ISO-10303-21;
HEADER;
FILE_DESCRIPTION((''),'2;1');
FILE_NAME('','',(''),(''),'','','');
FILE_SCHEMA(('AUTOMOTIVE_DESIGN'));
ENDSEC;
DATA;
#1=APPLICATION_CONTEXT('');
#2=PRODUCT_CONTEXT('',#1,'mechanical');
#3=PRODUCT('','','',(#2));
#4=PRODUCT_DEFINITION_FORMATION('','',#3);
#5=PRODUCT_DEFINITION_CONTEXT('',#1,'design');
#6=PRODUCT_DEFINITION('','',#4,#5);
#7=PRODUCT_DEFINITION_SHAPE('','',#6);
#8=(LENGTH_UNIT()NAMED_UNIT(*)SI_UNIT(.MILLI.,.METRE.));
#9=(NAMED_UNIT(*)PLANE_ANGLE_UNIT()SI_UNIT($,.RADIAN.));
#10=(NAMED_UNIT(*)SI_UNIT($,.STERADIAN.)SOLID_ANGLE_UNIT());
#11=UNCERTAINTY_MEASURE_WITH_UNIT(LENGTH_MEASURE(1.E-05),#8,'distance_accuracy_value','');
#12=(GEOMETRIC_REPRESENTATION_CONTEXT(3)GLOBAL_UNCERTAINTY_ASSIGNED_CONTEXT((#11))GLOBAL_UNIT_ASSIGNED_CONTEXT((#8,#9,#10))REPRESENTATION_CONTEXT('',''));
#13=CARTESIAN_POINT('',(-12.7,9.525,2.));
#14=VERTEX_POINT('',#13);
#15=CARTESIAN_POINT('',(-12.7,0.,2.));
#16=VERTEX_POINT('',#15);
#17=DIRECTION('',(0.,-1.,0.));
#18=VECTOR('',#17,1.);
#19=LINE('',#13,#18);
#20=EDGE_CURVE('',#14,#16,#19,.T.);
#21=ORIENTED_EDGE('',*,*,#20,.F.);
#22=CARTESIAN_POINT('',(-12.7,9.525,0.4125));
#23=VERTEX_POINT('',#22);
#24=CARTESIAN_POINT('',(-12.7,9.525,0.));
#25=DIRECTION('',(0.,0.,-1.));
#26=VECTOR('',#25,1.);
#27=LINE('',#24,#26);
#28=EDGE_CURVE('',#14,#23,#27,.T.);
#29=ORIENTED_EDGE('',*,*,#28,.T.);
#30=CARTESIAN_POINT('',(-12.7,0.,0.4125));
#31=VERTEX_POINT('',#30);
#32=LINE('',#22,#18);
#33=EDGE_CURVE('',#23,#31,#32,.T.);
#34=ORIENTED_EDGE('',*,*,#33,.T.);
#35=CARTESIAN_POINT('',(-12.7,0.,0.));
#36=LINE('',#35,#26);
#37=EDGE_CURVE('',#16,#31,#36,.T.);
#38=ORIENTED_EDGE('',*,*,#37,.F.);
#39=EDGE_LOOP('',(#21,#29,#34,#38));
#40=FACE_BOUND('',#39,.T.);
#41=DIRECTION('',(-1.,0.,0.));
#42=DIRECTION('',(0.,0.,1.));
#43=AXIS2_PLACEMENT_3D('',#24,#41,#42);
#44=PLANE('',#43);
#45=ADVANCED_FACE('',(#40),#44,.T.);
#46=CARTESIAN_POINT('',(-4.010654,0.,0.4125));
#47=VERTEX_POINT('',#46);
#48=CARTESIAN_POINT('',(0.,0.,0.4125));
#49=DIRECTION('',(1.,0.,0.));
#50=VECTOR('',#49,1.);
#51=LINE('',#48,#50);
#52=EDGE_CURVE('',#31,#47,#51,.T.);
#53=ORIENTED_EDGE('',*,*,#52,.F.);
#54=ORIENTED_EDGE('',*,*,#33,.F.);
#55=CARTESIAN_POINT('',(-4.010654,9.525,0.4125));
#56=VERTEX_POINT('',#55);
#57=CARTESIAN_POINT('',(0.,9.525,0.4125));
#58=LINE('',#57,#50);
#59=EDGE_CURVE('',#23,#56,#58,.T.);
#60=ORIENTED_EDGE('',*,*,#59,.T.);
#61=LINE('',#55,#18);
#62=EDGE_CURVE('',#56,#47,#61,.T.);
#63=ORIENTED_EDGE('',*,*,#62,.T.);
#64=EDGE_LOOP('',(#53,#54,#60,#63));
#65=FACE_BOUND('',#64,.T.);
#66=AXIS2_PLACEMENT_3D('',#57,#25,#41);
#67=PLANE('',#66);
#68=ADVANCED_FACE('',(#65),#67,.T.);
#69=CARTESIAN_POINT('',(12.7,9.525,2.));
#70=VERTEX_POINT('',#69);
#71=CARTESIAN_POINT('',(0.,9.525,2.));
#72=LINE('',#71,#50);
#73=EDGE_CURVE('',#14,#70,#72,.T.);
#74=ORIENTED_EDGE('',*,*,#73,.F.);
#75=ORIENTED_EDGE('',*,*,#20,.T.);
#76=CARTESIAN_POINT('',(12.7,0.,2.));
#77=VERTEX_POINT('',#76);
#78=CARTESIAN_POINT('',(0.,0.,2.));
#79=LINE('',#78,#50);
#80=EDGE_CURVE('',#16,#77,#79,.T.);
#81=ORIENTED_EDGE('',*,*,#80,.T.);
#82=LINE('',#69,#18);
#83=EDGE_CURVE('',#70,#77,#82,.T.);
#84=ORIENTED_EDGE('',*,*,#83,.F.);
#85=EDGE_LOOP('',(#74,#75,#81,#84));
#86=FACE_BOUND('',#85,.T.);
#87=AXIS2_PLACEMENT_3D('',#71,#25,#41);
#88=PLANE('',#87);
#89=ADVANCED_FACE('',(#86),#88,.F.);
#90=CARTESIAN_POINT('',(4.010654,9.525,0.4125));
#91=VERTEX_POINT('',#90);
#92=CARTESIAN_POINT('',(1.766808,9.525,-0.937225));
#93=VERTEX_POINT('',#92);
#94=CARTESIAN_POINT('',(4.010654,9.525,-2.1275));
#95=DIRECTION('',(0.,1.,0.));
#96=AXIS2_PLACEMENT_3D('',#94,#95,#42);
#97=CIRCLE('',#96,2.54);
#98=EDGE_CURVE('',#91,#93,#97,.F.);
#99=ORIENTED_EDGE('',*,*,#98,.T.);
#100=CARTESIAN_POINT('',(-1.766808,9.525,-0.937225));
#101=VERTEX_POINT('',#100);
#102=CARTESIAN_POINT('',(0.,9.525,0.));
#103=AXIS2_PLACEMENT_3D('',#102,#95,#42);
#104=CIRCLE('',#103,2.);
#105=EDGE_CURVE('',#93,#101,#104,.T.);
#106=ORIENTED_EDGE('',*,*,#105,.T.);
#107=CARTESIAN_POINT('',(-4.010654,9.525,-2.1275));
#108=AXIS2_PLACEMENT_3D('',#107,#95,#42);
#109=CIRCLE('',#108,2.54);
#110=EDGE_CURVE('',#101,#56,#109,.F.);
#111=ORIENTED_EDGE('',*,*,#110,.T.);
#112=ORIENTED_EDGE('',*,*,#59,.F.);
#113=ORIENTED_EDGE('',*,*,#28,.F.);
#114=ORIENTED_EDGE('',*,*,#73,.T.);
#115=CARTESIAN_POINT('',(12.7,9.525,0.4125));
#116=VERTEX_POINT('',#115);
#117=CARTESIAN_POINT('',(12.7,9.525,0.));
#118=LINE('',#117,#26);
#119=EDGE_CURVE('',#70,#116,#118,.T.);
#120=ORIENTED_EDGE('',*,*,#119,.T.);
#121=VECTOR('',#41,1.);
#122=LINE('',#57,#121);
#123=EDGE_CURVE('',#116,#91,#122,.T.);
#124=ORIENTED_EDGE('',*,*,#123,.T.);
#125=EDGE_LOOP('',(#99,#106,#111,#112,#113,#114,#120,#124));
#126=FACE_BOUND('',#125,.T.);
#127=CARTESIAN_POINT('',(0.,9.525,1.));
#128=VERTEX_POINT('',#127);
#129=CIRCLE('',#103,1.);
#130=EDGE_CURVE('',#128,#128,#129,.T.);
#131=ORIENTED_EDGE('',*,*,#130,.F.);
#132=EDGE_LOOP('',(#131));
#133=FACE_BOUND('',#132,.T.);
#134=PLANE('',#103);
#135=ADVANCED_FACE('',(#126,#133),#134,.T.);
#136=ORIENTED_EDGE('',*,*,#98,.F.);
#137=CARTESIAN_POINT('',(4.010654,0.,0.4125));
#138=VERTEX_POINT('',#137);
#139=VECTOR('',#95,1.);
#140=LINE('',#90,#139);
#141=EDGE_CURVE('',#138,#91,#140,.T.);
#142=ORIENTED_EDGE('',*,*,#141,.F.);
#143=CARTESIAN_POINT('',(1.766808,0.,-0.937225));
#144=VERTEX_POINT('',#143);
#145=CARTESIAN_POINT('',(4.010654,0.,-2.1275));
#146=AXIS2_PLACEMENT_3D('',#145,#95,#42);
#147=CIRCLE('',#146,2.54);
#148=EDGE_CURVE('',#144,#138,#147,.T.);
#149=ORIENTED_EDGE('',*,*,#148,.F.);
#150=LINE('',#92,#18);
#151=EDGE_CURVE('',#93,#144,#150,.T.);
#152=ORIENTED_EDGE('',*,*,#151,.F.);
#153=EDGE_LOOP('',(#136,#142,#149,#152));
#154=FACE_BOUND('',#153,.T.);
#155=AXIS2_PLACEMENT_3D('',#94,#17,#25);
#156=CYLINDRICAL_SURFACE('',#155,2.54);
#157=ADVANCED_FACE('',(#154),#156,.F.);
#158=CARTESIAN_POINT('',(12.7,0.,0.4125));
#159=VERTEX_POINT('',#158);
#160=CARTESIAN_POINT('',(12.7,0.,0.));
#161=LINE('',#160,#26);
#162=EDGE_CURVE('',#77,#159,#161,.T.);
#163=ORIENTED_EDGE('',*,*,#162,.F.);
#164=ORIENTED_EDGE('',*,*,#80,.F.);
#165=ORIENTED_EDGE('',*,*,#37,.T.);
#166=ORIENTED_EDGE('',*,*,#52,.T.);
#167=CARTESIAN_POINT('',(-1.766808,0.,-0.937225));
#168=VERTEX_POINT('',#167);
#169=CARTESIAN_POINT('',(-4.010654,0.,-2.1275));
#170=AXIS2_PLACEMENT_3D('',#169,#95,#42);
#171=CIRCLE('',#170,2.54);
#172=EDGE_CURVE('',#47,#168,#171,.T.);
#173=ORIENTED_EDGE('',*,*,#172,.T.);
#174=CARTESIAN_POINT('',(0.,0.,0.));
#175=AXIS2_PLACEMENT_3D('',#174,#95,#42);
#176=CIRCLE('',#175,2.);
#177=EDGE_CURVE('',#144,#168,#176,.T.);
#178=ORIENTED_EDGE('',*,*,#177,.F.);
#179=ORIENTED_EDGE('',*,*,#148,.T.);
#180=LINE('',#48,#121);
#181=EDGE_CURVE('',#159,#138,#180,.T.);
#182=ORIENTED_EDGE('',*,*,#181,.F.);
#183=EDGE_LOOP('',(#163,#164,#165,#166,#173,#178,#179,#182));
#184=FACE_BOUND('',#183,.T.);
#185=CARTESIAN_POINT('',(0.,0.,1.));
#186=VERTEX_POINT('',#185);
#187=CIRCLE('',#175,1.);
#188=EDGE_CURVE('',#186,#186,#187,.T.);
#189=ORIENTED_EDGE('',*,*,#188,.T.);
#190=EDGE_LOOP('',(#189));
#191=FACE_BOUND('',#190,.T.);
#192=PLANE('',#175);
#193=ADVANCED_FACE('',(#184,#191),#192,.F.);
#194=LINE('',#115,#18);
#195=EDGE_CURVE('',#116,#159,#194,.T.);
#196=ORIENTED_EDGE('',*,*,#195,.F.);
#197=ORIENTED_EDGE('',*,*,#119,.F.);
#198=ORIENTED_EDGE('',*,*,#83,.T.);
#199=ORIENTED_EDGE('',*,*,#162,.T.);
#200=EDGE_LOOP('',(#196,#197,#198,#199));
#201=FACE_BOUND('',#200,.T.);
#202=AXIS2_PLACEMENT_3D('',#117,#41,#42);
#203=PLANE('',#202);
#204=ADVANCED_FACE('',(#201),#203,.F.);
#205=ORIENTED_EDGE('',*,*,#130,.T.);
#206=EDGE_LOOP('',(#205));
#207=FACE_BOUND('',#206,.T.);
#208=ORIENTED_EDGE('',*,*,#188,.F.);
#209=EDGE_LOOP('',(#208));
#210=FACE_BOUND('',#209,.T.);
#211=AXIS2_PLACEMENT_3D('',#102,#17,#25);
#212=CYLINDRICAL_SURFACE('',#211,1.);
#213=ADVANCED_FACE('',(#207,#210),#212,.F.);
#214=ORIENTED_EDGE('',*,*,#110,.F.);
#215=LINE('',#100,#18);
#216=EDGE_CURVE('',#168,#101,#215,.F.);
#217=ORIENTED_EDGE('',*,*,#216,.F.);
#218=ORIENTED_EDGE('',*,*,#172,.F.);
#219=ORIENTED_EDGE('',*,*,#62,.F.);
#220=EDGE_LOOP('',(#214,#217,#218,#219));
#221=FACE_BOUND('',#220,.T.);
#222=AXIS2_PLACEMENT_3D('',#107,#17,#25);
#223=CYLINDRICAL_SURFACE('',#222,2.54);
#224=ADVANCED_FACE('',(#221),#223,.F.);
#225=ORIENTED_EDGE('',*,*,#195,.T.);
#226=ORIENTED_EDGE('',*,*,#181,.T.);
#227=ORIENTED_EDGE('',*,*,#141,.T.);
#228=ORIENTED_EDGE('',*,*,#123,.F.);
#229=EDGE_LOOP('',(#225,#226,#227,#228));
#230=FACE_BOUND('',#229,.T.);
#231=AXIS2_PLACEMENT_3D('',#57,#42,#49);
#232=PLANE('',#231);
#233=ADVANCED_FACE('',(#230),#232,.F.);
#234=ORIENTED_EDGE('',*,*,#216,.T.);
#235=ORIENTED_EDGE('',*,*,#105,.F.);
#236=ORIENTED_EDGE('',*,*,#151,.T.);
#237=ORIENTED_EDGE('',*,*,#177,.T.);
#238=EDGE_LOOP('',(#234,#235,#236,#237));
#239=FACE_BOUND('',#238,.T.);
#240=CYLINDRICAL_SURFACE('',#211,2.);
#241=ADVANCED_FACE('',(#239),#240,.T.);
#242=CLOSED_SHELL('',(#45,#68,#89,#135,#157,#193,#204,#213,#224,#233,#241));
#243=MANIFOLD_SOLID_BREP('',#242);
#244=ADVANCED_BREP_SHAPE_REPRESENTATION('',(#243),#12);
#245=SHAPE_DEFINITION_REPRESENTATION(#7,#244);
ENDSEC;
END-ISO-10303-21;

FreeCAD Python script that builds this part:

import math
import FreeCAD as App
import Part
import Sketcher
from FreeCAD import Vector
Q = App.Units.Quantity


def edges_at(feature, points):
    """Names of the edges that pass closest to the given points."""
    edges = feature.Shape.Edges
    near = lambda p: min(range(len(edges)), key=lambda i: edges[i].distToShape(Part.Vertex(*p))[0])
    return sorted({f"Edge{near(p) + 1}" for p in points})

doc = App.newDocument("Part")
body = doc.addObject("PartDesign::Body", "Body")

sketch1 = doc.addObject("Sketcher::SketchObject", "Sketch")
body.addObject(sketch1)
sketch1.AttachmentSupport = (doc.XZ_Plane, [""])
sketch1.MapMode = "FlatFace"
sketch1.addGeometry(Part.LineSegment(Vector(-12.7, 0.4, 0), Vector(-12.7, 2, 0)), False)
sketch1.addGeometry(Part.LineSegment(Vector(-12.7, 2, 0), Vector(12.7, 2, 0)), False)
sketch1.addGeometry(Part.LineSegment(Vector(12.7, 2, 0), Vector(12.7, 0.4, 0)), False)
sketch1.addGeometry(Part.LineSegment(Vector(12.7, 0.4, 0), Vector(2, 0.4, 0)), False)
sketch1.addGeometry(Part.ArcOfCircle(Part.Circle(Vector(0, 0, 0), Vector(0, 0, 1), 2), math.radians(168), math.radians(372)), False)
sketch1.addGeometry(Part.LineSegment(Vector(-2, 0.4, 0), Vector(-12.7, 0.4, 0)), False)
sketch1.addGeometry(Part.Circle(Vector(0, 0, 0), Vector(0, 0, 1), 1), False)
sketch1.addConstraint(Sketcher.Constraint("Coincident", 0, 2, 1, 1))
sketch1.addConstraint(Sketcher.Constraint("Coincident", 1, 2, 2, 1))
sketch1.addConstraint(Sketcher.Constraint("Coincident", 2, 2, 3, 1))
sketch1.addConstraint(Sketcher.Constraint("Coincident", 3, 2, 4, 2))
sketch1.addConstraint(Sketcher.Constraint("Coincident", 4, 1, 5, 1))
sketch1.addConstraint(Sketcher.Constraint("Coincident", 5, 2, 0, 1))
sketch1.addConstraint(Sketcher.Constraint("Vertical", 0))
sketch1.addConstraint(Sketcher.Constraint("Horizontal", 1))
sketch1.addConstraint(Sketcher.Constraint("Vertical", 2))
sketch1.addConstraint(Sketcher.Constraint("Horizontal", 3))
sketch1.addConstraint(Sketcher.Constraint("Horizontal", 5))
sketch1.addConstraint(Sketcher.Constraint("Coincident", 4, 3, -1, 1))
sketch1.addConstraint(Sketcher.Constraint("Coincident", 6, 3, -1, 1))
sketch1.addConstraint(Sketcher.Constraint("Symmetric", 2, 2, 5, 2, -2))
sketch1.addConstraint(Sketcher.Constraint("DistanceX", 1, 1, 1, 2, Q("1 in")))
sketch1.addConstraint(Sketcher.Constraint("Diameter", 6, 2.0))
sketch1.addConstraint(Sketcher.Constraint("DistanceY", 0, 1, 0, 2, Q("0.0625 in")))
sketch1.addConstraint(Sketcher.Constraint("Radius", 4, 2.0))
sketch1.addConstraint(Sketcher.Constraint("DistanceX", 3, 2, 3, 1, 10.743001))
pad1 = doc.addObject("PartDesign::Pad", "Pad")
body.addObject(pad1)
pad1.Profile = sketch1
pad1.Length = Q("0.375 in")
pad1.Reversed = True
doc.recompute()

fillet = doc.addObject("PartDesign::Fillet", "Fillet")
body.addObject(fillet)
fillet.Base = (pad1, edges_at(pad1, [(-1.957, 4.763, 0.412), (1.957, 4.763, 0.412)]))
fillet.Radius = Q("0.1 in")

doc.recompute()
